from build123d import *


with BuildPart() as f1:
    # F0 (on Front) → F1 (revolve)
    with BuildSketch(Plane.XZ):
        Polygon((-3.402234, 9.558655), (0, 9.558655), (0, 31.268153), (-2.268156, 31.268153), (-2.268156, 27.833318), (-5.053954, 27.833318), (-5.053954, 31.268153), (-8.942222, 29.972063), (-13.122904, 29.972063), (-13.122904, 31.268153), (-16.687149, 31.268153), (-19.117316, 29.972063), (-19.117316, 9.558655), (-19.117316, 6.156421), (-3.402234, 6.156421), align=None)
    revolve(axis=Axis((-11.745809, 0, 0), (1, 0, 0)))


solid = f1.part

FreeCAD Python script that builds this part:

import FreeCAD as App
import Part
import Sketcher
from FreeCAD import Vector

doc = App.newDocument("Part")
body = doc.addObject("PartDesign::Body", "Body")

# Sketch on XZ plane
sketch1 = body.newObject("Sketcher::SketchObject", "Sketch")
sketch1.AttachmentSupport = (doc.getObject("XZ_Plane"), [""])
sketch1.MapMode = "FlatFace"
sketch1.addGeometry([
    Part.LineSegment(Vector(-3.402234, 9.558655, 0), Vector(0, 9.558655, 0)),  # 0
    Part.LineSegment(Vector(0, 9.558655, 0), Vector(0, 31.268153, 0)),  # 1
    Part.LineSegment(Vector(0, 31.268153, 0), Vector(-2.268156, 31.268153, 0)),  # 2
    Part.LineSegment(Vector(-2.268156, 31.268153, 0), Vector(-2.268156, 27.833318, 0)),  # 3
    Part.LineSegment(Vector(-2.268156, 27.833318, 0), Vector(-5.053954, 27.833318, 0)),  # 4
    Part.LineSegment(Vector(-5.053954, 27.833318, 0), Vector(-5.053954, 31.268153, 0)),  # 5
    Part.LineSegment(Vector(-5.053954, 31.268153, 0), Vector(-8.942222, 29.972063, 0)),  # 6
    Part.LineSegment(Vector(-8.942222, 29.972063, 0), Vector(-13.122904, 29.972063, 0)),  # 7
    Part.LineSegment(Vector(-13.122904, 29.972063, 0), Vector(-13.122904, 31.268153, 0)),  # 8
    Part.LineSegment(Vector(-13.122904, 31.268153, 0), Vector(-16.687149, 31.268153, 0)),  # 9
    Part.LineSegment(Vector(-16.687149, 31.268153, 0), Vector(-19.117316, 29.972063, 0)),  # 10
    Part.LineSegment(Vector(-19.117316, 29.972063, 0), Vector(-19.117316, 6.156421, 0)),  # 11
    Part.LineSegment(Vector(-19.117316, 6.156421, 0), Vector(-3.402234, 6.156421, 0)),  # 12
    Part.LineSegment(Vector(-3.402234, 6.156421, 0), Vector(-3.402234, 9.558655, 0)),  # 13
], False)
sketch1.addConstraint([
    Sketcher.Constraint("Coincident", 0, 2, 1, 1),
    Sketcher.Constraint("Coincident", 1, 2, 2, 1),
    Sketcher.Constraint("Coincident", 2, 2, 3, 1),
    Sketcher.Constraint("Coincident", 3, 2, 4, 1),
    Sketcher.Constraint("Coincident", 4, 2, 5, 1),
    Sketcher.Constraint("Coincident", 5, 2, 6, 1),
    Sketcher.Constraint("Coincident", 6, 2, 7, 1),
    Sketcher.Constraint("Coincident", 7, 2, 8, 1),
    Sketcher.Constraint("Coincident", 8, 2, 9, 1),
    Sketcher.Constraint("Coincident", 9, 2, 10, 1),
    Sketcher.Constraint("Coincident", 10, 2, 11, 1),
    Sketcher.Constraint("Coincident", 11, 2, 12, 1),
    Sketcher.Constraint("Coincident", 12, 2, 13, 1),
    Sketcher.Constraint("Coincident", 13, 2, 0, 1),
    Sketcher.Constraint("Horizontal", 0),
    Sketcher.Constraint("Vertical", 1),
    Sketcher.Constraint("Horizontal", 2),
    Sketcher.Constraint("Vertical", 3),
    Sketcher.Constraint("Horizontal", 4),
    Sketcher.Constraint("Vertical", 5),
    Sketcher.Constraint("Horizontal", 7),
    Sketcher.Constraint("Vertical", 8),
    Sketcher.Constraint("Horizontal", 9),
    Sketcher.Constraint("Vertical", 11),
    Sketcher.Constraint("Horizontal", 12),
    Sketcher.Constraint("Vertical", 13),
    Sketcher.Constraint("PointOnObject", 0, 2, -2),
    Sketcher.Constraint("Horizontal", 2, 2, 5, 2),
    Sketcher.Constraint("Horizontal", 5, 2, 8, 2),
    Sketcher.Constraint("Horizontal", 7, 2, 10, 2),
    Sketcher.Constraint("Equal", 0, 13),
    Sketcher.Constraint("DistanceX", 4, 2, 4, 1, 2.785798),
    Sketcher.Constraint("DistanceY", 1, 1, 1, 2, 21.709498),
    Sketcher.Constraint("DistanceX", 12, 1, 12, 2, 15.715082),
    Sketcher.Constraint("DistanceY", 8, 1, 8, 2, 1.29609),
    Sketcher.Constraint("DistanceY", 11, 2, 11, 1, 23.815642),
    Sketcher.Constraint("Distance", 10, 2.75419),
    Sketcher.Constraint("DistanceX", 2, 2, 2, 1, 2.268156),
    Sketcher.Constraint("DistanceX", 7, 2, 7, 1, 4.180682),
    Sketcher.Constraint("DistanceX", 9, 2, 9, 1, 3.564245),
    Sketcher.Constraint("DistanceY", 3, 2, 3, 1, 3.434835),
    Sketcher.Constraint("DistanceY", -1, 1, 11, 2, 6.156421),
])
revolution = body.newObject("PartDesign::Revolution", "Revolution")
revolution.Profile = sketch1
revolution.ReferenceAxis = (sketch1, ["H_Axis"])
revolution.Angle = 360

doc.recompute()
